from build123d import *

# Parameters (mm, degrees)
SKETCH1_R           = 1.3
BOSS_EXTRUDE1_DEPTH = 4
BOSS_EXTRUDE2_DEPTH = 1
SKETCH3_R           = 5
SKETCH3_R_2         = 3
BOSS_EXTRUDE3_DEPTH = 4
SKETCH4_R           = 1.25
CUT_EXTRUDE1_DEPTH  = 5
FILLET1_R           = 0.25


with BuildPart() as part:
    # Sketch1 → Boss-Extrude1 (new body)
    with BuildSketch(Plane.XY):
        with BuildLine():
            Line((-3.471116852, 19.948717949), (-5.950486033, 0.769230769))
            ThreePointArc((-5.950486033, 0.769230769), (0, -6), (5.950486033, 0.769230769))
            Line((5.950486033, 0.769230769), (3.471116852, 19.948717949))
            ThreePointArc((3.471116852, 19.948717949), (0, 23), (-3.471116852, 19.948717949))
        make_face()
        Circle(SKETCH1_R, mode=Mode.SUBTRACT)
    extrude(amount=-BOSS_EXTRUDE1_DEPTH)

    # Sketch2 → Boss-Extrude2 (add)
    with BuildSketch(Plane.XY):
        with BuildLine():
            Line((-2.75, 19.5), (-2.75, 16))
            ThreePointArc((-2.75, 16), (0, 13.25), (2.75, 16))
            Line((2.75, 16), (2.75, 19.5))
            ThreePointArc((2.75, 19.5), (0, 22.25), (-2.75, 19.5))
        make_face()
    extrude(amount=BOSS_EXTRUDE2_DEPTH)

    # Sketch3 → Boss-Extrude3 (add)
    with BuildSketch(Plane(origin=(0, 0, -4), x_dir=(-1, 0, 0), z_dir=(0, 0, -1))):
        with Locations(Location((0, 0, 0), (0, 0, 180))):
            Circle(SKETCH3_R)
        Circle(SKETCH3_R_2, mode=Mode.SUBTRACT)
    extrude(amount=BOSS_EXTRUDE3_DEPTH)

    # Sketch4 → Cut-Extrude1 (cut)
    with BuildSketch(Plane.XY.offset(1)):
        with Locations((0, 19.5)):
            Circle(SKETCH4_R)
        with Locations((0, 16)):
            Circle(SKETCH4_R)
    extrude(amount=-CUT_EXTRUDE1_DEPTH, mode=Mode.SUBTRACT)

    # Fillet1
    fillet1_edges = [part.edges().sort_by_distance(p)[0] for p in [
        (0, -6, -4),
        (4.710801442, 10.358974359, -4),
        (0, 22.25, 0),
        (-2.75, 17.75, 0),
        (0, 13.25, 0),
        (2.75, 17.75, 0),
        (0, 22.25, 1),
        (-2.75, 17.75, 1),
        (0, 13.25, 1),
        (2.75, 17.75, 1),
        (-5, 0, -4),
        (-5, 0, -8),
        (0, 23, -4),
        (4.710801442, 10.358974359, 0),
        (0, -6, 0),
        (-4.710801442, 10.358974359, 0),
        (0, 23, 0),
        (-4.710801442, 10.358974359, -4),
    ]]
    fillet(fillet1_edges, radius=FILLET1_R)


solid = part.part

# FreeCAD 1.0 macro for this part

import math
import FreeCAD as App
import Part
import Sketcher
Q = App.Units.Quantity


def edges_at(feature, points):
    """Names of the edges that pass closest to the given points."""
    edges = feature.Shape.Edges
    near = lambda p: min(range(len(edges)), key=lambda i: edges[i].distToShape(Part.Vertex(*p))[0])
    return sorted({f"Edge{near(p) + 1}" for p in points})

doc = App.newDocument("Part")
body = doc.addObject("PartDesign::Body", "Body")

# Sketch on XY plane
sketch1 = body.newObject("Sketcher::SketchObject", "Sketch")
sketch1.AttachmentSupport = (doc.getObject("XY_Plane"), [""])
sketch1.MapMode = "FlatFace"
sketch1.addGeometry([
    Part.LineSegment(App.Vector(-3.5, 19.9, 0), App.Vector(-6, 0.8, 0)),  # 0
    Part.ArcOfCircle(Part.Circle(App.Vector(0, 0, 0), App.Vector(0, 0, 1), 6), math.radians(173), math.radians(367)),  # 1
    Part.LineSegment(App.Vector(6, 0.8, 0), App.Vector(3.5, 19.9, 0)),  # 2
    Part.ArcOfCircle(Part.Circle(App.Vector(0, 19.5, 0), App.Vector(0, 0, 1), 3.5), math.radians(7), math.radians(173)),  # 3
    Part.Circle(App.Vector(0, 0, 0), App.Vector(0, 0, 1), 1.3),  # 4
], False)
sketch1.addConstraint([
    Sketcher.Constraint("Tangent", 0, 2, 1, 1),
    Sketcher.Constraint("Tangent", 1, 2, 2, 1),
    Sketcher.Constraint("Tangent", 2, 2, 3, 1),
    Sketcher.Constraint("Tangent", 3, 2, 0, 1),
    Sketcher.Constraint("Coincident", 1, 3, -1, 1),
    Sketcher.Constraint("Coincident", 4, 3, -1, 1),
    Sketcher.Constraint("PointOnObject", 3, 3, -2),
    Sketcher.Constraint("Radius", 1, Q("6 mm")),
    Sketcher.Constraint("Diameter", 4, Q("2.6 mm")),
    Sketcher.Constraint("Radius", 3, Q("3.5 mm")),
    Sketcher.Constraint("DistanceY", -1, 1, 3, 3, Q("19.5 mm")),
])
pad1 = body.newObject("PartDesign::Pad", "Pad")
pad1.Profile = sketch1
pad1.Length = 4
pad1.Reversed = True

# Sketch on XY plane
sketch2 = body.newObject("Sketcher::SketchObject", "Sketch001")
sketch2.AttachmentSupport = (doc.getObject("XY_Plane"), [""])
sketch2.MapMode = "FlatFace"
sketch2.addGeometry([
    Part.LineSegment(App.Vector(-2.8, 19.5, 0), App.Vector(-2.8, 16, 0)),
    Part.ArcOfCircle(Part.Circle(App.Vector(0, 16, 0), App.Vector(0, 0, 1), 2.8), math.radians(180), math.radians(360)),
    Part.LineSegment(App.Vector(2.8, 16, 0), App.Vector(2.8, 19.5, 0)),
    Part.ArcOfCircle(Part.Circle(App.Vector(0, 19.5, 0), App.Vector(0, 0, 1), 2.8), math.radians(0), math.radians(180)),
], False)
sketch2.addConstraint([
    Sketcher.Constraint("Tangent", 0, 2, 1, 1),
    Sketcher.Constraint("Tangent", 1, 2, 2, 1),
    Sketcher.Constraint("Tangent", 2, 2, 3, 1),
    Sketcher.Constraint("Tangent", 3, 2, 0, 1),
    Sketcher.Constraint("Vertical", 0),
    Sketcher.Constraint("Vertical", 2),
    Sketcher.Constraint("PointOnObject", 1, 3, -2),
    Sketcher.Constraint("Radius", 1, Q("2.75 mm")),
    Sketcher.Constraint("DistanceY", 0, 2, 0, 1, Q("3.5 mm")),
    Sketcher.Constraint("DistanceY", -1, 1, 1, 3, Q("16 mm")),
])
pad2 = body.newObject("PartDesign::Pad", "Pad001")
pad2.Profile = sketch2
pad2.Length = 1

# Sketch on XY plane
sketch3 = body.newObject("Sketcher::SketchObject", "Sketch002")
sketch3.AttachmentSupport = (doc.getObject("XY_Plane"), [""])
sketch3.MapMode = "FlatFace"
sketch3.AttachmentOffset = App.Placement(App.Vector(0, 0, -4), App.Rotation())
sketch3.addGeometry([
    Part.Circle(App.Vector(0, 0, 0), App.Vector(0, 0, 1), 5),
    Part.Circle(App.Vector(0, 0, 0), App.Vector(0, 0, 1), 3),
], False)
sketch3.addConstraint([
    Sketcher.Constraint("Coincident", 0, 3, -1, 1),
    Sketcher.Constraint("Coincident", 1, 3, -1, 1),
    Sketcher.Constraint("Diameter", 0, Q("10 mm")),
    Sketcher.Constraint("Diameter", 1, Q("6 mm")),
])
pad3 = body.newObject("PartDesign::Pad", "Pad002")
pad3.Profile = sketch3
pad3.Length = 4
pad3.Reversed = True

# Sketch on XY plane
sketch4 = body.newObject("Sketcher::SketchObject", "Sketch003")
sketch4.AttachmentSupport = (doc.getObject("XY_Plane"), [""])
sketch4.MapMode = "FlatFace"
sketch4.AttachmentOffset = App.Placement(App.Vector(0, 0, 1), App.Rotation())
sketch4.addGeometry([
    Part.Circle(App.Vector(0, 19.5, 0), App.Vector(0, 0, 1), 1.2),
    Part.Circle(App.Vector(0, 16, 0), App.Vector(0, 0, 1), 1.2),
], False)
sketch4.addConstraint([
    Sketcher.Constraint("Equal", 0, 1),
    Sketcher.Constraint("PointOnObject", 0, 3, -2),
    Sketcher.Constraint("PointOnObject", 1, 3, -2),
    Sketcher.Constraint("Diameter", 0, Q("2.5 mm")),
    Sketcher.Constraint("DistanceY", -1, 1, 1, 3, Q("16 mm")),
    Sketcher.Constraint("DistanceY", -1, 1, 0, 3, Q("19.5 mm")),
])
pocket1 = body.newObject("PartDesign::Pocket", "Pocket")
pocket1.Profile = sketch4
pocket1.Length = 5
doc.recompute()

fillet = body.newObject("PartDesign::Fillet", "Fillet")
fillet.Base = (pocket1, edges_at(pocket1, [
    (0, -6, -4),
    (4.711, 10.359, -4),
    (0, 22.25, 0),
    (-2.75, 17.75, 0),
    (0, 13.25, 0),
    (2.75, 17.75, 0),
    (0, 22.25, 1),
    (-2.75, 17.75, 1),
    (0, 13.25, 1),
    (2.75, 17.75, 1),
    (-5, 0, -4),
    (-5, 0, -8),
    (0, 23, -4),
    (4.711, 10.359, 0),
    (0, -6, 0),
    (-4.711, 10.359, 0),
    (0, 23, 0),
    (-4.711, 10.359, -4),
]))
fillet.Radius = 0.25

doc.recompute()
